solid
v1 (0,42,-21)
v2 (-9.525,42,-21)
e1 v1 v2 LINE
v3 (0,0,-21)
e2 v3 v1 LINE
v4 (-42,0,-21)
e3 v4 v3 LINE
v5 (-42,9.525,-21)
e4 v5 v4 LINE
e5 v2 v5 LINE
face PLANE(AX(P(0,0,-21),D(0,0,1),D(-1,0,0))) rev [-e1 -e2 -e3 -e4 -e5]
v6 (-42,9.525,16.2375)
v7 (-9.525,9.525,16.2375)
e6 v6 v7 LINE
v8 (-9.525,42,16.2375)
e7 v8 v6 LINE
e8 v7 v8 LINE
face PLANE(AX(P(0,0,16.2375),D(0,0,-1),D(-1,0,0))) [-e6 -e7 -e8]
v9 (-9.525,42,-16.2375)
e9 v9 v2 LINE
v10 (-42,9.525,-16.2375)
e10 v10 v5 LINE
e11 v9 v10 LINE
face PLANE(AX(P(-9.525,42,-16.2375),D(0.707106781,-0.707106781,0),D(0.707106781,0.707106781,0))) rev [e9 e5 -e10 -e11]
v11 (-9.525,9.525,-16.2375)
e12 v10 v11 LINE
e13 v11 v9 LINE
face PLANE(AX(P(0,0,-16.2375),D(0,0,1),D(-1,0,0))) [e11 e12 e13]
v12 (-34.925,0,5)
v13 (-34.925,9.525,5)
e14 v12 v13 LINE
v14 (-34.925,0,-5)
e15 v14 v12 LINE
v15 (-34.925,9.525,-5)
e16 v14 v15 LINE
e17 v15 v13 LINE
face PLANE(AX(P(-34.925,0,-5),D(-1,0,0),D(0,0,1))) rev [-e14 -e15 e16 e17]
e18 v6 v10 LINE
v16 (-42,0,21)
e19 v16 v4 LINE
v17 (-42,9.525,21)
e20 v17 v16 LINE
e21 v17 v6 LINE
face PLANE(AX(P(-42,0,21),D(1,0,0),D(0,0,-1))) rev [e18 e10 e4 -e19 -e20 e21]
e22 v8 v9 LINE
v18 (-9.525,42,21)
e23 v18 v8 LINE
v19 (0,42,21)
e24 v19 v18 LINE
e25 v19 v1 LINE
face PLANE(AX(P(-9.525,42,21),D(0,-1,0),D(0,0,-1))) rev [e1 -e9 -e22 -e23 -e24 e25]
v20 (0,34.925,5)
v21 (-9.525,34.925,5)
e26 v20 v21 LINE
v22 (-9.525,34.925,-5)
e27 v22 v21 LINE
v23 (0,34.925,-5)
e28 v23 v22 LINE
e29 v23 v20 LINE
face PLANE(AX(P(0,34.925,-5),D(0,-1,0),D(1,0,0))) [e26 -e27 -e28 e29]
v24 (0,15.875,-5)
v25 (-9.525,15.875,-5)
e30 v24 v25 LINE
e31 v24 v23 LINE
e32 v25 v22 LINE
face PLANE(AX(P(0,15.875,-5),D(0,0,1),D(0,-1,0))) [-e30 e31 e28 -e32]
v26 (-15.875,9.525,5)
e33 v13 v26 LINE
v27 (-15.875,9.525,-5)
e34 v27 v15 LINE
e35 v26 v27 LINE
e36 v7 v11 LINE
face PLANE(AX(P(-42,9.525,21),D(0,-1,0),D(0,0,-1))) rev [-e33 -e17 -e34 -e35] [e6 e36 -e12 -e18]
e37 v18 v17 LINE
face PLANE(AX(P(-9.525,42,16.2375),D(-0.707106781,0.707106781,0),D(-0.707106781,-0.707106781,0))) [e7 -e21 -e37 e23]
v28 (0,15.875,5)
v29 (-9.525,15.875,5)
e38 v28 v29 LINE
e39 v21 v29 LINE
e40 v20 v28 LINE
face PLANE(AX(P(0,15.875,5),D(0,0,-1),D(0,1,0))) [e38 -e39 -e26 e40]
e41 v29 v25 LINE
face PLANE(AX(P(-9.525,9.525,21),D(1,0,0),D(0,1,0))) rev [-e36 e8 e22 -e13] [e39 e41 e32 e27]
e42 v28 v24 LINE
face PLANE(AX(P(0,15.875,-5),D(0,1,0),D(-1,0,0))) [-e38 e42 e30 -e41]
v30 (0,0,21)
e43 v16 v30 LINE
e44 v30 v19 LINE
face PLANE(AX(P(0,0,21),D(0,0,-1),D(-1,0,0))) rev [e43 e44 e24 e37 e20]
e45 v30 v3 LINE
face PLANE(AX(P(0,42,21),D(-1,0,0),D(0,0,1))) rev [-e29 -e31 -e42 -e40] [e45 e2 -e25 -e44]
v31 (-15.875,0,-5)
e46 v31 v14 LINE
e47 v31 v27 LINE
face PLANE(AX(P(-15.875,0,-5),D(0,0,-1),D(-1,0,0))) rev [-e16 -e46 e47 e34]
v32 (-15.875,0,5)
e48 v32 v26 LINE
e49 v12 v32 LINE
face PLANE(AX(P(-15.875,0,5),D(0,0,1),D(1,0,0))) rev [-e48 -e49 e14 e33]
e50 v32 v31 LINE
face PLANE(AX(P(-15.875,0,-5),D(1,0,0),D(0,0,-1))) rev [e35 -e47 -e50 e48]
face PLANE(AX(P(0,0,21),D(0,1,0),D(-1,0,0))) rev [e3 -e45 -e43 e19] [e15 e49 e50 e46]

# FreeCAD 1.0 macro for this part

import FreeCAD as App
import Part
import Sketcher
Q = App.Units.Quantity


def add_polygon(sketch, points):
    """Adds a closed chain of lines whose ends are joined by coincident constraints."""
    first, n = sketch.GeometryCount, len(points)
    for a, b in zip(points, points[1:] + points[:1]):
        sketch.addGeometry(Part.LineSegment(App.Vector(*a, 0), App.Vector(*b, 0)), False)
    for i in range(n):
        sketch.addConstraint(Sketcher.Constraint("Coincident", first + i, 2, first + (i + 1) % n, 1))

doc = App.newDocument("Part")
params = doc.addObject("Spreadsheet::Sheet", "Params")
for row, (alias, value) in enumerate([
    ("sketch1_width", "42 mm"),
    ("pad1_length", "21 mm"),
    ("pad2_length", "4.7625 mm"),
    ("sketch3_height", "10 mm"),
    ("sketch3_width", "19.05 mm"),
], start=1):
    params.set(f"A{row}", alias)
    params.set(f"B{row}", "=" + value)
    params.setAlias(f"B{row}", alias)

body = doc.addObject("PartDesign::Body", "Body")

# Sketch on XY plane
sketch1 = body.newObject("Sketcher::SketchObject", "Sketch")
sketch1.AttachmentSupport = (doc.getObject("XY_Plane"), [""])
sketch1.MapMode = "FlatFace"
add_polygon(sketch1, [(-42, 0), (0, 0), (0, 42), (-10, 42), (-10, 10), (-42, 10)])  # lines 0-5
sketch1.addConstraint([
    Sketcher.Constraint("Horizontal", 0),
    Sketcher.Constraint("Vertical", 1),
    Sketcher.Constraint("Horizontal", 2),
    Sketcher.Constraint("Vertical", 3),
    Sketcher.Constraint("Horizontal", 4),
    Sketcher.Constraint("Vertical", 5),
    Sketcher.Constraint("Coincident", 0, 2, -1, 1),
    Sketcher.Constraint("Equal", 0, 1),
    Sketcher.Constraint("Equal", 4, 3),
    Sketcher.Constraint("DistanceX", 0, 1, 0, 2, Q("42 mm")),
    Sketcher.Constraint("DistanceX", 2, 2, 2, 1, Q("9.525 mm")),
])
sketch1.setExpression("Constraints[15]", "Params.sketch1_width")
pad1 = body.newObject("PartDesign::Pad", "Pad")
pad1.Profile = sketch1
pad1.setExpression("Length", "Params.pad1_length")

# Sketch on XY plane
sketch2 = body.newObject("Sketcher::SketchObject", "Sketch001")
sketch2.AttachmentSupport = (doc.getObject("XY_Plane"), [""])
sketch2.MapMode = "FlatFace"
sketch2.AttachmentOffset = App.Placement(App.Vector(0, 0, 21), App.Rotation())
add_polygon(sketch2, [(-10, 42), (-42, 10), (-10, 10)])  # lines 0-2
sketch2.addConstraint([
    Sketcher.Constraint("Horizontal", 1),
    Sketcher.Constraint("Vertical", 2),
    Sketcher.Constraint("Equal", 1, 2),
    Sketcher.Constraint("DistanceX", 0, 2, -1, 1, Q("42 mm")),
    Sketcher.Constraint("DistanceY", -1, 1, 2, 2, Q("42 mm")),
    Sketcher.Constraint("DistanceX", 1, 1, 1, 2, Q("32.475 mm")),
])
pad2 = body.newObject("PartDesign::Pad", "Pad001")
pad2.Profile = sketch2
pad2.setExpression("Length", "Params.pad2_length")
pad2.Reversed = True
doc.recompute()

mirrored = body.newObject("PartDesign::Mirrored", "Mirrored")
mirrored.Originals = [pad1, pad2]
mirrored.MirrorPlane = (doc.getObject("XY_Plane"), [""])
body.Tip = mirrored

# Sketch on XZ plane
sketch3 = body.newObject("Sketcher::SketchObject", "Sketch002")
sketch3.AttachmentSupport = (doc.getObject("XZ_Plane"), [""])
sketch3.MapMode = "FlatFace"
sketch3.AttachmentOffset = App.Placement(App.Vector(0, 0, -9.525), App.Rotation())
add_polygon(sketch3, [(-35, -5), (-35, 5), (-16, 5), (-16, -5)])  # lines 0-3
sketch3.addConstraint([
    Sketcher.Constraint("Vertical", 0),
    Sketcher.Constraint("Horizontal", 1),
    Sketcher.Constraint("Vertical", 2),
    Sketcher.Constraint("Horizontal", 3),
    Sketcher.Constraint("DistanceY", 0, 1, 0, 2, Q("10 mm")),
    Sketcher.Constraint("DistanceY", -1, 1, 0, 2, Q("5 mm")),
    Sketcher.Constraint("DistanceX", 1, 1, 1, 2, Q("19.05 mm")),
    Sketcher.Constraint("DistanceX", 0, 2, -1, 1, Q("34.925 mm")),
])
sketch3.setExpression("Constraints[8]", "Params.sketch3_height")
sketch3.setExpression("Constraints[10]", "Params.sketch3_width")
pocket1 = body.newObject("PartDesign::Pocket", "Pocket")
pocket1.Profile = sketch3
pocket1.Type = "ThroughAll"
pocket1.Reversed = True
doc.recompute()

datumplane = body.newObject("PartDesign::Plane", "DatumPlane")
datumplane.Placement = App.Placement(App.Vector(0, 0, 0), App.Rotation(App.Vector(0.707106781, -0.707106781, 0), App.Vector(0, 0, -1), App.Vector(0.707106781, 0.707106781, 0), "ZXY"))
mirrored2 = body.newObject("PartDesign::Mirrored", "Mirrored001")
mirrored2.Originals = [pocket1]
mirrored2.MirrorPlane = (datumplane, [""])
body.Tip = mirrored2

doc.recompute()
